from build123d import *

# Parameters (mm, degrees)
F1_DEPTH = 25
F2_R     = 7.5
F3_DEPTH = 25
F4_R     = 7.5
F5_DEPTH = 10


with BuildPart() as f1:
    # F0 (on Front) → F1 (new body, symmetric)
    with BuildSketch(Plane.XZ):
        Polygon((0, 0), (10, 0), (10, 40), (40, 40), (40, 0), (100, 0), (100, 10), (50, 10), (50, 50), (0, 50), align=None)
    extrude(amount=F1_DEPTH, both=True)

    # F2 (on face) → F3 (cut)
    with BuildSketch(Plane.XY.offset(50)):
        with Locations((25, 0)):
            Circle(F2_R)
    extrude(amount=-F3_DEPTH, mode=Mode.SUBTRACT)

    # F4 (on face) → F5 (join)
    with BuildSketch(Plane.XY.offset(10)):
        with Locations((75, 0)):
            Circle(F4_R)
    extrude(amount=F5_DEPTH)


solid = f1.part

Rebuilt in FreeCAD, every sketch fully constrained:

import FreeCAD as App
import Part
import Sketcher

doc = App.newDocument("Part")
body = doc.addObject("PartDesign::Body", "Body")

# Sketch on XZ plane
sketch1 = body.newObject("Sketcher::SketchObject", "Sketch")
sketch1.AttachmentSupport = (doc.getObject("XZ_Plane"), [""])
sketch1.MapMode = "FlatFace"
sketch1.addGeometry(Part.LineSegment(App.Vector(0, 0, 0), App.Vector(10, 0, 0)), False)
sketch1.addGeometry(Part.LineSegment(App.Vector(10, 0, 0), App.Vector(10, 40, 0)), False)
sketch1.addGeometry(Part.LineSegment(App.Vector(10, 40, 0), App.Vector(40, 40, 0)), False)
sketch1.addGeometry(Part.LineSegment(App.Vector(40, 40, 0), App.Vector(40, 0, 0)), False)
sketch1.addGeometry(Part.LineSegment(App.Vector(40, 0, 0), App.Vector(100, 0, 0)), False)
sketch1.addGeometry(Part.LineSegment(App.Vector(100, 0, 0), App.Vector(100, 10, 0)), False)
sketch1.addGeometry(Part.LineSegment(App.Vector(100, 10, 0), App.Vector(50, 10, 0)), False)
sketch1.addGeometry(Part.LineSegment(App.Vector(50, 10, 0), App.Vector(50, 50, 0)), False)
sketch1.addGeometry(Part.LineSegment(App.Vector(50, 50, 0), App.Vector(0, 50, 0)), False)
sketch1.addGeometry(Part.LineSegment(App.Vector(0, 50, 0), App.Vector(0, 0, 0)), False)
sketch1.addConstraint(Sketcher.Constraint("Coincident", 0, 2, 1, 1))
sketch1.addConstraint(Sketcher.Constraint("Coincident", 1, 2, 2, 1))
sketch1.addConstraint(Sketcher.Constraint("Coincident", 2, 2, 3, 1))
sketch1.addConstraint(Sketcher.Constraint("Coincident", 3, 2, 4, 1))
sketch1.addConstraint(Sketcher.Constraint("Coincident", 4, 2, 5, 1))
sketch1.addConstraint(Sketcher.Constraint("Coincident", 5, 2, 6, 1))
sketch1.addConstraint(Sketcher.Constraint("Coincident", 6, 2, 7, 1))
sketch1.addConstraint(Sketcher.Constraint("Coincident", 7, 2, 8, 1))
sketch1.addConstraint(Sketcher.Constraint("Coincident", 8, 2, 9, 1))
sketch1.addConstraint(Sketcher.Constraint("Coincident", 9, 2, 0, 1))
sketch1.addConstraint(Sketcher.Constraint("Horizontal", 0))
sketch1.addConstraint(Sketcher.Constraint("Vertical", 1))
sketch1.addConstraint(Sketcher.Constraint("Horizontal", 2))
sketch1.addConstraint(Sketcher.Constraint("Vertical", 3))
sketch1.addConstraint(Sketcher.Constraint("Horizontal", 4))
sketch1.addConstraint(Sketcher.Constraint("Vertical", 5))
sketch1.addConstraint(Sketcher.Constraint("Horizontal", 6))
sketch1.addConstraint(Sketcher.Constraint("Vertical", 7))
sketch1.addConstraint(Sketcher.Constraint("Horizontal", 8))
sketch1.addConstraint(Sketcher.Constraint("Vertical", 9))
sketch1.addConstraint(Sketcher.Constraint("Coincident", 9, 2, -1, 1))
sketch1.addConstraint(Sketcher.Constraint("PointOnObject", 3, 2, -1))
sketch1.addConstraint(Sketcher.Constraint("Equal", 6, 8))
sketch1.addConstraint(Sketcher.Constraint("Equal", 0, 5))
sketch1.addConstraint(Sketcher.Constraint("Equal", 3, 7))
sketch1.addConstraint(Sketcher.Constraint("Equal", 8, 9))
sketch1.addConstraint(Sketcher.Constraint("DistanceX", 0, 1, 0, 2, 10.0))
sketch1.addConstraint(Sketcher.Constraint("DistanceX", 2, 1, 2, 2, 30.0))
sketch1.addConstraint(Sketcher.Constraint("DistanceX", 4, 1, 4, 2, 60.0))
pad1 = body.newObject("PartDesign::Pad", "Pad")
pad1.Profile = sketch1
pad1.Length = 50
pad1.Midplane = True

# Sketch on XY plane
sketch2 = body.newObject("Sketcher::SketchObject", "Sketch001")
sketch2.AttachmentSupport = (doc.getObject("XY_Plane"), [""])
sketch2.MapMode = "FlatFace"
sketch2.AttachmentOffset = App.Placement(App.Vector(0, 0, 50), App.Rotation())
sketch2.addGeometry(Part.Circle(App.Vector(25, 0, 0), App.Vector(0, 0, 1), 8), False)
sketch2.addConstraint(Sketcher.Constraint("PointOnObject", 0, 3, -1))
sketch2.addConstraint(Sketcher.Constraint("Diameter", 0, 15.0))
sketch2.addConstraint(Sketcher.Constraint("DistanceX", -1, 1, 0, 3, 25.0))
pocket1 = body.newObject("PartDesign::Pocket", "Pocket")
pocket1.Profile = sketch2
pocket1.Length = 25

# Sketch on XY plane
sketch3 = body.newObject("Sketcher::SketchObject", "Sketch002")
sketch3.AttachmentSupport = (doc.getObject("XY_Plane"), [""])
sketch3.MapMode = "FlatFace"
sketch3.AttachmentOffset = App.Placement(App.Vector(0, 0, 10), App.Rotation())
sketch3.addGeometry(Part.Circle(App.Vector(75, 0, 0), App.Vector(0, 0, 1), 8), False)
sketch3.addConstraint(Sketcher.Constraint("PointOnObject", 0, 3, -1))
sketch3.addConstraint(Sketcher.Constraint("Diameter", 0, 15.0))
sketch3.addConstraint(Sketcher.Constraint("DistanceX", -1, 1, 0, 3, 75.0))
pad2 = body.newObject("PartDesign::Pad", "Pad001")
pad2.Profile = sketch3
pad2.Length = 10

doc.recompute()
